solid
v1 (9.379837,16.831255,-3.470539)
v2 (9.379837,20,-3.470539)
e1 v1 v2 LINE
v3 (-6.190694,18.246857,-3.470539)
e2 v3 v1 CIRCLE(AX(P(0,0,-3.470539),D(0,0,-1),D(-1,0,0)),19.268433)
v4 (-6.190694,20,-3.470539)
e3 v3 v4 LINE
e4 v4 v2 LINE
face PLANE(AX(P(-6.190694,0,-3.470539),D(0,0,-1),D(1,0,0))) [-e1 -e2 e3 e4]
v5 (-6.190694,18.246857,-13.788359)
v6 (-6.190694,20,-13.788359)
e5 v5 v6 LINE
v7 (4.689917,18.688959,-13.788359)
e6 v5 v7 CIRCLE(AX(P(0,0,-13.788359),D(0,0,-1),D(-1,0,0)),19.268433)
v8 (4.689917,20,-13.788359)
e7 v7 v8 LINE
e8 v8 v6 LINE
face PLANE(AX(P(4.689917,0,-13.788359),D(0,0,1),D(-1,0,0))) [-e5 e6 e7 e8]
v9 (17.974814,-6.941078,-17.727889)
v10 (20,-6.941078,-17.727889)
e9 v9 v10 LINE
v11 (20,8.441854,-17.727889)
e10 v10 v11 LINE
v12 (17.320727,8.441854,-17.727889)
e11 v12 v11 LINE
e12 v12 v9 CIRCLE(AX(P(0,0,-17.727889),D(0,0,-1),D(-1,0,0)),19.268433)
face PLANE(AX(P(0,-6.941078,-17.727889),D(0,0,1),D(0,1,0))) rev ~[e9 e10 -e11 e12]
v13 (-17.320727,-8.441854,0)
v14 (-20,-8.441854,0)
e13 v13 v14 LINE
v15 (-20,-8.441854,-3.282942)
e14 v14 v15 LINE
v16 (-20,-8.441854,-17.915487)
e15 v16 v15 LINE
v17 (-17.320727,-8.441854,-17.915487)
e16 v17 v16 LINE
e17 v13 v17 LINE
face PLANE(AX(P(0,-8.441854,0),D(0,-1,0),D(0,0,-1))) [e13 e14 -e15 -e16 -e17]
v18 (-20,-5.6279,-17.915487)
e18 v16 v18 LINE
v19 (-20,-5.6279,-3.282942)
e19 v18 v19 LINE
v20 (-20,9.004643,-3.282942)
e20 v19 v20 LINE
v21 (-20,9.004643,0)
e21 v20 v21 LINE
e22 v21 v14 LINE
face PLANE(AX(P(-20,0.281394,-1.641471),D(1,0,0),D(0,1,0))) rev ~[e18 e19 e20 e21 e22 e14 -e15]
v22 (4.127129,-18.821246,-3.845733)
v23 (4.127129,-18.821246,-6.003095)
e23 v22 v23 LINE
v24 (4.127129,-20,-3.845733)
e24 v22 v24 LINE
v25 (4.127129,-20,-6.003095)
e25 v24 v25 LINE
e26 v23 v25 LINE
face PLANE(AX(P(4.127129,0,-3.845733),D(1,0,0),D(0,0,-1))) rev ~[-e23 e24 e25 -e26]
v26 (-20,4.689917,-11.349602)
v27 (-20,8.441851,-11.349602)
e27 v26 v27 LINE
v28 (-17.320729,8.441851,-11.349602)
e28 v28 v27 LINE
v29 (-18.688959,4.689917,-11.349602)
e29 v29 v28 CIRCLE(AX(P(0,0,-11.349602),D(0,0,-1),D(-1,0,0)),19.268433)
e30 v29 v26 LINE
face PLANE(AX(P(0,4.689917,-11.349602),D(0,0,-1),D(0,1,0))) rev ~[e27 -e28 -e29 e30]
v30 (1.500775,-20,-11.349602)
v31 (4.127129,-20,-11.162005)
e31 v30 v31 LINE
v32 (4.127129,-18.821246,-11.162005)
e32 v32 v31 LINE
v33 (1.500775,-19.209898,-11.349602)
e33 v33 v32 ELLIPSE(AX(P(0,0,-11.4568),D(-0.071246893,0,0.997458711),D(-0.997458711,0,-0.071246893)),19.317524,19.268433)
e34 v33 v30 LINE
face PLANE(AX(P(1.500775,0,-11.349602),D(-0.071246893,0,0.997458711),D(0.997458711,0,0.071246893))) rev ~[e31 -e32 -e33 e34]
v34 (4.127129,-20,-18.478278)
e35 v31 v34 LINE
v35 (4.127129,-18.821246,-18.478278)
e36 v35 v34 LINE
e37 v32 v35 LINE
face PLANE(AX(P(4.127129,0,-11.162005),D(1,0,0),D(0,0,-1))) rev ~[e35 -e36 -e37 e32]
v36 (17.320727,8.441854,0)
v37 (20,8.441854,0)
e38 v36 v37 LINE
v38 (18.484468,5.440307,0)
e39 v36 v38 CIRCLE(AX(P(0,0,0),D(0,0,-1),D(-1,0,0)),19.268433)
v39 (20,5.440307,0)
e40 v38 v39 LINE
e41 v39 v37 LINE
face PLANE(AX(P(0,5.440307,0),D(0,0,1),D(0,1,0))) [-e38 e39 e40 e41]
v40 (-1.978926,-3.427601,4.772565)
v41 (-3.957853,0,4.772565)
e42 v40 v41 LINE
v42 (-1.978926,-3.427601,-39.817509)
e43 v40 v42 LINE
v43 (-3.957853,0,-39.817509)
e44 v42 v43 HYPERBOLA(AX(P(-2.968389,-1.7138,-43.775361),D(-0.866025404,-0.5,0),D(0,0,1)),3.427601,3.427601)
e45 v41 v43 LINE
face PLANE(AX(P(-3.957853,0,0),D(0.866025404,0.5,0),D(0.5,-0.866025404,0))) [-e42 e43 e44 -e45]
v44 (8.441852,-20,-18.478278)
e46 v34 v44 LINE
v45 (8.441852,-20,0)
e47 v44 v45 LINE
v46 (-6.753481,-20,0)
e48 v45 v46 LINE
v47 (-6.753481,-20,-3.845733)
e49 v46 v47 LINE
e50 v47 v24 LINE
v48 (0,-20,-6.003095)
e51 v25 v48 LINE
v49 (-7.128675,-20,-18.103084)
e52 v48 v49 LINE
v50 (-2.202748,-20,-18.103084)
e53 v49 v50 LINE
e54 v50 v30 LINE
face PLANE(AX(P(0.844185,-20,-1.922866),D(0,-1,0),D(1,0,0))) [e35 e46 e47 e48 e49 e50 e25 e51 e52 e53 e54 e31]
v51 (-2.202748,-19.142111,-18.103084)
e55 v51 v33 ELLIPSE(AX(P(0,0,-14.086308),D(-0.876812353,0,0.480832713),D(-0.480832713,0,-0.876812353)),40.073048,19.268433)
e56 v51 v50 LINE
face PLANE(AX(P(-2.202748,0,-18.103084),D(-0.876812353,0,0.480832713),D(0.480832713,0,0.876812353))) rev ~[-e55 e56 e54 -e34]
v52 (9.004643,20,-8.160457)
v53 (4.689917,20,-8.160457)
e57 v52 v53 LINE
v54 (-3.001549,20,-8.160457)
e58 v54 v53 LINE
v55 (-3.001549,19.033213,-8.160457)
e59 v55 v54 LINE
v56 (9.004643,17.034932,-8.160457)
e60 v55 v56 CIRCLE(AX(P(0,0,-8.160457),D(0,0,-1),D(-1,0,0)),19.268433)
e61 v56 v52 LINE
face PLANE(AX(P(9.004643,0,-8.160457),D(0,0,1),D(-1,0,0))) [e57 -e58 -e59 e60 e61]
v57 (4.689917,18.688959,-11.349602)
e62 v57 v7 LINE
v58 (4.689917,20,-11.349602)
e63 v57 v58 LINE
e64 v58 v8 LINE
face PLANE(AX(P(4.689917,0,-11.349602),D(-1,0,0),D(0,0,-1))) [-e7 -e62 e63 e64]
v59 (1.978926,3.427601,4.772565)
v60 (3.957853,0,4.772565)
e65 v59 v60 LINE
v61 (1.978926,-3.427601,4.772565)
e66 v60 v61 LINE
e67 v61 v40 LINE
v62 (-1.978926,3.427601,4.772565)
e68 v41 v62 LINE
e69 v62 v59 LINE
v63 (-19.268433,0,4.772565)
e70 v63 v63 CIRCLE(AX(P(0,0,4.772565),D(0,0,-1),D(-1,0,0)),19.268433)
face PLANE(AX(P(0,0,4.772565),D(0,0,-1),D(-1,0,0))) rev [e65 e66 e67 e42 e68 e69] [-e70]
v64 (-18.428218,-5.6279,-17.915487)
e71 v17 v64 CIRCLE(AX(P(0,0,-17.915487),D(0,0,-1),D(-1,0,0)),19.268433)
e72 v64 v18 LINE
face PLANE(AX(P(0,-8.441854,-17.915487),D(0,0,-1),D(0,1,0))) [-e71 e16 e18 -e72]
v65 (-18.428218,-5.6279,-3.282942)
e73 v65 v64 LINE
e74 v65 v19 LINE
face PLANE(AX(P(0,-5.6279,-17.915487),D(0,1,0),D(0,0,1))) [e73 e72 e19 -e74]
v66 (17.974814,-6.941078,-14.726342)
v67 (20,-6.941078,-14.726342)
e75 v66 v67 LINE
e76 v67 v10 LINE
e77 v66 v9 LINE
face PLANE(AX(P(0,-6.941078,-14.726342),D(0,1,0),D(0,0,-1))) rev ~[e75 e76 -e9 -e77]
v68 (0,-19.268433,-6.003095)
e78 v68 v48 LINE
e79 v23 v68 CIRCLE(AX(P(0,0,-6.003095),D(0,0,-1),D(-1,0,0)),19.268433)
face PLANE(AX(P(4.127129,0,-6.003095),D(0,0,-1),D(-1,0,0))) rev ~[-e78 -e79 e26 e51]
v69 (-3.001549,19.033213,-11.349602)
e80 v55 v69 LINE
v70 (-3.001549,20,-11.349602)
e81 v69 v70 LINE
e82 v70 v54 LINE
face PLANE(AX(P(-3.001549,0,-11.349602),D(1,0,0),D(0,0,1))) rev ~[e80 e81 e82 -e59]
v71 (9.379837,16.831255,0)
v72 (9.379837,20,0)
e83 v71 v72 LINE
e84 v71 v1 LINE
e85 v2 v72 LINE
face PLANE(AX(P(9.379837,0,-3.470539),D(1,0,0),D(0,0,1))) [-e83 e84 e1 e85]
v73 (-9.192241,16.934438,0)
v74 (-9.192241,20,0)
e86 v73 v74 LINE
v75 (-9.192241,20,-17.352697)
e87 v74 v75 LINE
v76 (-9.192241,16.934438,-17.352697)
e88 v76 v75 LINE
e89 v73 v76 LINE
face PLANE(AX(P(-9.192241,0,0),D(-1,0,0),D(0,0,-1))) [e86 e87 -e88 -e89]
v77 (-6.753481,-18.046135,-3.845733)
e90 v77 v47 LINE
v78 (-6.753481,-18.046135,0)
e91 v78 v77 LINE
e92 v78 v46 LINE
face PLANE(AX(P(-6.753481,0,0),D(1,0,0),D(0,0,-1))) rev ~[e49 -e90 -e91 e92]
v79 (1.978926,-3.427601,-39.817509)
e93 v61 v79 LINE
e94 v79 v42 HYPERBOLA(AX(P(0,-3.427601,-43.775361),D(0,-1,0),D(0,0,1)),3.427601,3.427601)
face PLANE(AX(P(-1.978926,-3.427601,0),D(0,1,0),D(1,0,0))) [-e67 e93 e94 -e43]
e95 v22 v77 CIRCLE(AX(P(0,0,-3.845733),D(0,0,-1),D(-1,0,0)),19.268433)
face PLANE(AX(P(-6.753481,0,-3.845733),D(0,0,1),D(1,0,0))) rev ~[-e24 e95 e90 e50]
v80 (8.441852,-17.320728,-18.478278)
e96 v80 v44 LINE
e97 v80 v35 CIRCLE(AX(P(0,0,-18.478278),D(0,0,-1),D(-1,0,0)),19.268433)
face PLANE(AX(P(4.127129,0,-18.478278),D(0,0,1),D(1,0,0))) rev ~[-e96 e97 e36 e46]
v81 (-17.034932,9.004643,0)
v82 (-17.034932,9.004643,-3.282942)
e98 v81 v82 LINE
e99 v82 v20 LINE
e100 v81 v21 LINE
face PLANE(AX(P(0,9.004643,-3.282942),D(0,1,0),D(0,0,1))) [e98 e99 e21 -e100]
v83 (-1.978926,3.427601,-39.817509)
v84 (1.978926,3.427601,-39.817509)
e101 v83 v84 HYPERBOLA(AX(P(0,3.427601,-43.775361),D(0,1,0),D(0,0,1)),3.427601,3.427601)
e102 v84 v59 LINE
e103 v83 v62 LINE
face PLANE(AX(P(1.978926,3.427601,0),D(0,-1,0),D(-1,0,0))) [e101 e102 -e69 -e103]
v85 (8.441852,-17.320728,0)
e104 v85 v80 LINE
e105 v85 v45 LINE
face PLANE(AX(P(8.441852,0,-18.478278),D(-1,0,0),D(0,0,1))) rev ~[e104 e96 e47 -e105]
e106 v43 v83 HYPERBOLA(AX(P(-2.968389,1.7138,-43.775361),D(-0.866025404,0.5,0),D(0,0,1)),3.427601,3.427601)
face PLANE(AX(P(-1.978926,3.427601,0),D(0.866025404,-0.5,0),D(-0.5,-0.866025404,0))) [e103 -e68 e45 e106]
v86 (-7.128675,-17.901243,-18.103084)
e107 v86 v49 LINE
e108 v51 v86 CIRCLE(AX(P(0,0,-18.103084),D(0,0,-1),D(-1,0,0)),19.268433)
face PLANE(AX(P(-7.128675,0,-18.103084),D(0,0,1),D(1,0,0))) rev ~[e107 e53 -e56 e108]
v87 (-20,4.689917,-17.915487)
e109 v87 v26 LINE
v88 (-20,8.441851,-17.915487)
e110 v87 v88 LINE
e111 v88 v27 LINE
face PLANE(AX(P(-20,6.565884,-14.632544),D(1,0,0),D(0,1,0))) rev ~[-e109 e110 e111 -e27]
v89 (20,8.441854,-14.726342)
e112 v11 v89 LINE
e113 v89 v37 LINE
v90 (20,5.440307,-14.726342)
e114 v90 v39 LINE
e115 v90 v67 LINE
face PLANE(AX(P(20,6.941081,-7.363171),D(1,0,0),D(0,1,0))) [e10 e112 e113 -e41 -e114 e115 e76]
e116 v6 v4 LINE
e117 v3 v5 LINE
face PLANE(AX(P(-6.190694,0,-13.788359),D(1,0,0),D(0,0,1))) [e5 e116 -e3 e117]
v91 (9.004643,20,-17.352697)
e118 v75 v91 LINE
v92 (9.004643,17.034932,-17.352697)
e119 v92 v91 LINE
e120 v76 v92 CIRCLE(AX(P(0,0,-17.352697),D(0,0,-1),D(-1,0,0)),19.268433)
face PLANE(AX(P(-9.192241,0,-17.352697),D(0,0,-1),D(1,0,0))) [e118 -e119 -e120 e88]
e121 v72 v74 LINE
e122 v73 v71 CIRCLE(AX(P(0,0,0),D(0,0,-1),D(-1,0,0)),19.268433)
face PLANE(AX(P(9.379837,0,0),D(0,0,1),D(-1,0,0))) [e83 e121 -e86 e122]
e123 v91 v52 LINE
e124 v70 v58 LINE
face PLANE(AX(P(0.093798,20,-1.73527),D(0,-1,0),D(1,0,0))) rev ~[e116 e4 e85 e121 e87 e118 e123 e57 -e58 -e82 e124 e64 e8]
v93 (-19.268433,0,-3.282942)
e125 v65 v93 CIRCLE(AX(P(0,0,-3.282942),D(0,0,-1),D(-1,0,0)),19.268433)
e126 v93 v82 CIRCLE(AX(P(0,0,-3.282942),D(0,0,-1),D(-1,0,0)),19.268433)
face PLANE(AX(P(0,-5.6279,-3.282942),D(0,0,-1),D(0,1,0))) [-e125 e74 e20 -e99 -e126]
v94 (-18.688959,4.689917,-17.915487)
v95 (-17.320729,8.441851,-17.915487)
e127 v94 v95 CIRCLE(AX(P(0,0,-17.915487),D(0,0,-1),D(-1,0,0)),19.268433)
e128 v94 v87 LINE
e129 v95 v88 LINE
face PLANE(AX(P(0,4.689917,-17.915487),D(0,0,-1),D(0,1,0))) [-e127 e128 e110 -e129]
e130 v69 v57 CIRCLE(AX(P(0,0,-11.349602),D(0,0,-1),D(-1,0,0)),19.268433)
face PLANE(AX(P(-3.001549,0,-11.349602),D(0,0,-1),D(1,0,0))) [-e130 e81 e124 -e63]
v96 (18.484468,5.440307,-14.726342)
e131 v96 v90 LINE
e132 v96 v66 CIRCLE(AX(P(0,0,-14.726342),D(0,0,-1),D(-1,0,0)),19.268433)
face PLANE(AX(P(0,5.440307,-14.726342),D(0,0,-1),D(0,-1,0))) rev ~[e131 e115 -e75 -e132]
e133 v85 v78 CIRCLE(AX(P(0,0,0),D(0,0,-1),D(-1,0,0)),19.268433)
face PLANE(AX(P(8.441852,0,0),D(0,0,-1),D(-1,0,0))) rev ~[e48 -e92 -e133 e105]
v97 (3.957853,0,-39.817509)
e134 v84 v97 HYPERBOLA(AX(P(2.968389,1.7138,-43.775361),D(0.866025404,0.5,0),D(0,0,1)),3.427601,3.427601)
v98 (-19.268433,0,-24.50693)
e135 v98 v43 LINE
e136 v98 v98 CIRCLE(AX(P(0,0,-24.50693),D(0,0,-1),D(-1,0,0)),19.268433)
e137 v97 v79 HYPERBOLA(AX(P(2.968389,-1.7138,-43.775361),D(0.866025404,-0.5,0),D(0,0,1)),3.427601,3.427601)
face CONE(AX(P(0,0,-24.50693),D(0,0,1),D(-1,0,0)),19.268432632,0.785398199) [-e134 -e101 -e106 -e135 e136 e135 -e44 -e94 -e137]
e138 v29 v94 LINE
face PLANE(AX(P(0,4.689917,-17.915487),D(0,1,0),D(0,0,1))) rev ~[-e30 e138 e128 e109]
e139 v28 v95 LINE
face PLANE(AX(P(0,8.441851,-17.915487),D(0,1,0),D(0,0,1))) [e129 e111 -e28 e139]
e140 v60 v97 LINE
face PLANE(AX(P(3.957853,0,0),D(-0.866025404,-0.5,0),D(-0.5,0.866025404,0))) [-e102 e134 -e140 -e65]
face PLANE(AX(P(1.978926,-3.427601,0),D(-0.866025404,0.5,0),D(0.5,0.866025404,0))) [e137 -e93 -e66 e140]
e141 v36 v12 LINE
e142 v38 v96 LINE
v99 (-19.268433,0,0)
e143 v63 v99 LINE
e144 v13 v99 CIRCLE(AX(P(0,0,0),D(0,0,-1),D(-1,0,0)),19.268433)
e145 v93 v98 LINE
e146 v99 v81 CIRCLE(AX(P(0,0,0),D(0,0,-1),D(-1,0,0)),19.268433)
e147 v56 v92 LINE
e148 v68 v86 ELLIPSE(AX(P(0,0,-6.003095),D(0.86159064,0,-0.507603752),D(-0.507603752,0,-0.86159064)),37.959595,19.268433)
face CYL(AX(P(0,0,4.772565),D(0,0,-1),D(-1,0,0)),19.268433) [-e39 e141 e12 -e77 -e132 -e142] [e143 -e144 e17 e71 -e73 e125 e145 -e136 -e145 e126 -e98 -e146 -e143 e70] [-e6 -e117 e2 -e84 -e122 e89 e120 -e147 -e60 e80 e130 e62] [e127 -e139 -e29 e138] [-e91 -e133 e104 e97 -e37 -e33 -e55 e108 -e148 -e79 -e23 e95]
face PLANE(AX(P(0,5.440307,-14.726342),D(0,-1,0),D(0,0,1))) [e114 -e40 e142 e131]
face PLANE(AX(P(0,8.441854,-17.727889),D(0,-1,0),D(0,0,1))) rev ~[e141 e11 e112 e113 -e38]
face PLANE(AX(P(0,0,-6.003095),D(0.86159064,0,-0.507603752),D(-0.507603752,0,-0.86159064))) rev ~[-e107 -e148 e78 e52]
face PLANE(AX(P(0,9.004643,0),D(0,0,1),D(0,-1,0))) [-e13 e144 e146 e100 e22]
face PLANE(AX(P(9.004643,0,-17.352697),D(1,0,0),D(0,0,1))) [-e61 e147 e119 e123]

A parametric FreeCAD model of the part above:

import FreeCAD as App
import Part
import Sketcher
from FreeCAD import Vector
Q = App.Units.Quantity


def add_polygon(sketch, points):
    """Adds a closed chain of lines whose ends are joined by coincident constraints."""
    first, n = sketch.GeometryCount, len(points)
    for a, b in zip(points, points[1:] + points[:1]):
        sketch.addGeometry(Part.LineSegment(App.Vector(*a, 0), App.Vector(*b, 0)), False)
    for i in range(n):
        sketch.addConstraint(Sketcher.Constraint("Coincident", first + i, 2, first + (i + 1) % n, 1))

doc = App.newDocument("Part")
body = doc.addObject("PartDesign::Body", "Body")

# Sketch on XZ plane
sketch1 = doc.addObject("Sketcher::SketchObject", "Sketch")
body.addObject(sketch1)
sketch1.AttachmentSupport = (doc.XZ_Plane, [""])
sketch1.MapMode = "FlatFace"
add_polygon(sketch1, [(0, 5), (-19, 5), (-19, -25), (0, -44)])  # lines 0-3
sketch1.addConstraint([
    Sketcher.Constraint("Horizontal", 0),
    Sketcher.Constraint("Vertical", 1),
    Sketcher.Constraint("Vertical", 3),
    Sketcher.Constraint("PointOnObject", 2, 2, -2),
    Sketcher.Constraint("Angle", 2, Q("-44.999998 deg")),
    Sketcher.Constraint("DistanceX", 0, 2, 0, 1, Q("19.268433 mm")),
    Sketcher.Constraint("DistanceY", 1, 2, 1, 1, Q("29.279495 mm")),
    Sketcher.Constraint("DistanceY", 1, 2, -1, 1, Q("24.50693 mm")),
])
revolution = doc.addObject("PartDesign::Revolution", "Revolution")
body.addObject(revolution)
revolution.Profile = sketch1
revolution.ReferenceAxis = (sketch1, ["V_Axis"])
revolution.Angle = 360

# Sketch on XY plane
sketch2 = doc.addObject("Sketcher::SketchObject", "Sketch001")
body.addObject(sketch2)
sketch2.AttachmentSupport = (doc.XY_Plane, [""])
sketch2.MapMode = "FlatFace"
add_polygon(sketch2, [(-2, -3.4), (2, -3.4), (4, 0), (2, 3.4), (-2, 3.4), (-4, 0)])  # lines 0-5
sketch2.addConstraint([
    Sketcher.Constraint("Horizontal", 0),
    Sketcher.Constraint("Horizontal", 3),
    Sketcher.Constraint("Symmetric", 0, 2, 3, 2, -1, 1),
    Sketcher.Constraint("Symmetric", 1, 2, 4, 2, -1, 1),
    Sketcher.Constraint("PointOnObject", 1, 2, -1),
    Sketcher.Constraint("Parallel", 2, 5),
    Sketcher.Constraint("Vertical", 0, 2, 2, 2),
    Sketcher.Constraint("Angle", 1, Q("60 deg")),
    Sketcher.Constraint("DistanceY", 0, 2, -1, 1, Q("3.427601 mm")),
    Sketcher.Constraint("DistanceX", 0, 1, 0, 2, Q("3.957853 mm")),
])
pocket1 = doc.addObject("PartDesign::Pocket", "Pocket")
body.addObject(pocket1)
pocket1.Profile = sketch2
pocket1.Length = 71.64283
pocket1.Reversed = True

# Sketch on YZ plane
sketch3 = doc.addObject("Sketcher::SketchObject", "Sketch002")
body.addObject(sketch3)
sketch3.AttachmentSupport = (doc.YZ_Plane, [""])
sketch3.MapMode = "FlatFace"
add_polygon(sketch3, [(5.4, 0), (5.4, -14.7), (-6.9, -14.7), (-6.9, -17.7), (8.4, -17.7), (8.4, -14.7), (8.4, 0)])  # lines 0-6
sketch3.addConstraint([
    Sketcher.Constraint("Vertical", 0),
    Sketcher.Constraint("Horizontal", 1),
    Sketcher.Constraint("Vertical", 2),
    Sketcher.Constraint("Horizontal", 3),
    Sketcher.Constraint("Vertical", 4),
    Sketcher.Constraint("Vertical", 5),
    Sketcher.Constraint("Horizontal", 6),
    Sketcher.Constraint("PointOnObject", 5, 2, -1),
    Sketcher.Constraint("Horizontal", 1, 2, 4, 2),
    Sketcher.Constraint("Equal", 6, 2),
    Sketcher.Constraint("DistanceY", 0, 2, 0, 1, Q("14.726342 mm")),
    Sketcher.Constraint("DistanceX", 1, 2, 1, 1, Q("12.381385 mm")),
    Sketcher.Constraint("DistanceX", 3, 1, 3, 2, Q("15.382932 mm")),
    Sketcher.Constraint("DistanceX", 1, 2, -1, 1, Q("6.941078 mm")),
])
pad1 = doc.addObject("PartDesign::Pad", "Pad")
body.addObject(pad1)
pad1.Profile = sketch3
pad1.Length = 20

# Sketch on YZ plane
sketch4 = doc.addObject("Sketcher::SketchObject", "Sketch003")
body.addObject(sketch4)
sketch4.AttachmentSupport = (doc.YZ_Plane, [""])
sketch4.MapMode = "FlatFace"
add_polygon(sketch4, [(9, -3.3), (9, 0), (-8.4, 0), (-8.4, -3.3), (-8.4, -17.9), (-5.6, -17.9), (-5.6, -3.3)])  # lines 0-6
add_polygon(sketch4, [(4.7, -11.3), (4.7, -17.9), (8.4, -17.9), (8.4, -11.3)])  # lines 7-10
sketch4.addConstraint([
    Sketcher.Constraint("Vertical", 0),
    Sketcher.Constraint("Horizontal", 1),
    Sketcher.Constraint("Vertical", 2),
    Sketcher.Constraint("Vertical", 3),
    Sketcher.Constraint("Horizontal", 4),
    Sketcher.Constraint("Vertical", 5),
    Sketcher.Constraint("Horizontal", 6),
    Sketcher.Constraint("Vertical", 7),
    Sketcher.Constraint("Horizontal", 8),
    Sketcher.Constraint("Vertical", 9),
    Sketcher.Constraint("Horizontal", 10),
    Sketcher.Constraint("Symmetric", 3, 2, 8, 2, -2),
    Sketcher.Constraint("PointOnObject", 0, 2, -1),
    Sketcher.Constraint("Horizontal", 2, 2, 5, 2),
    Sketcher.Constraint("Equal", 6, 3),
    Sketcher.Constraint("DistanceX", 4, 2, -1, 1, Q("5.6279 mm")),
    Sketcher.Constraint("DistanceY", 9, 2, -1, 1, Q("11.349602 mm")),
    Sketcher.Constraint("DistanceX", 1, 2, 1, 1, Q("17.446497 mm")),
    Sketcher.Constraint("DistanceX", 4, 1, 4, 2, Q("2.813954 mm")),
    Sketcher.Constraint("DistanceX", 8, 1, 8, 2, Q("3.751934 mm")),
    Sketcher.Constraint("DistanceY", 0, 1, 0, 2, Q("3.282942 mm")),
])
pad2 = doc.addObject("PartDesign::Pad", "Pad001")
body.addObject(pad2)
pad2.Profile = sketch4
pad2.Length = 20
pad2.Reversed = True

# Sketch on XZ plane
sketch5 = doc.addObject("Sketcher::SketchObject", "Sketch004")
body.addObject(sketch5)
sketch5.AttachmentSupport = (doc.XZ_Plane, [""])
sketch5.MapMode = "FlatFace"
add_polygon(sketch5, [(8.4, 0), (-6.8, 0), (-6.8, -3.8), (4.1, -3.8), (4.1, -6), (0, -6), (-7.1, -18.1), (-2.2, -18.1), (1.5, -11.3), (4.1, -11.2), (4.1, -18.5), (8.4, -18.5)])  # lines 0-11
sketch5.addConstraint([
    Sketcher.Constraint("Horizontal", 0),
    Sketcher.Constraint("Vertical", 1),
    Sketcher.Constraint("Horizontal", 2),
    Sketcher.Constraint("Vertical", 3),
    Sketcher.Constraint("Horizontal", 4),
    Sketcher.Constraint("Horizontal", 6),
    Sketcher.Constraint("Vertical", 9),
    Sketcher.Constraint("Horizontal", 10),
    Sketcher.Constraint("Vertical", 11),
    Sketcher.Constraint("PointOnObject", 0, 2, -1),
    Sketcher.Constraint("PointOnObject", 4, 2, -2),
    Sketcher.Constraint("Vertical", 3, 2, 8, 2),
    Sketcher.Constraint("DistanceX", 2, 1, 2, 2, Q("10.88061 mm")),
    Sketcher.Constraint("DistanceX", 4, 2, 4, 1, Q("4.127129 mm")),
    Sketcher.Constraint("DistanceY", 7, 2, -1, 1, Q("11.349602 mm")),
    Sketcher.Constraint("DistanceX", 6, 2, 10, 2, Q("10.644601 mm")),
    Sketcher.Constraint("Distance", 5, Q("14.043779 mm")),
    Sketcher.Constraint("Distance", 7, Q("7.702312 mm")),
    Sketcher.Constraint("DistanceX", 0, 2, 0, 1, Q("15.195334 mm")),
    Sketcher.Constraint("DistanceX", 6, 1, 6, 2, Q("4.925927 mm")),
    Sketcher.Constraint("DistanceY", 1, 2, 1, 1, Q("3.845733 mm")),
    Sketcher.Constraint("DistanceY", 3, 2, 3, 1, Q("2.157362 mm")),
    Sketcher.Constraint("DistanceY", 9, 2, 9, 1, Q("7.316272 mm")),
    Sketcher.Constraint("DistanceY", 11, 1, 11, 2, Q("18.478278 mm")),
])
pad3 = doc.addObject("PartDesign::Pad", "Pad002")
body.addObject(pad3)
pad3.Profile = sketch5
pad3.Length = 20

# Sketch on XZ plane
sketch6 = doc.addObject("Sketcher::SketchObject", "Sketch005")
body.addObject(sketch6)
sketch6.AttachmentSupport = (doc.XZ_Plane, [""])
sketch6.MapMode = "FlatFace"
add_polygon(sketch6, [(9.4, -3.5), (9.4, 0), (-9.2, 0), (-9.2, -17.4), (9, -17.4), (9, -8.2), (4.7, -8.2), (-3, -8.2), (-3, -11.3), (4.7, -11.3), (4.7, -13.8), (-6.2, -13.8), (-6.2, -3.5)])  # lines 0-12
sketch6.addConstraint([
    Sketcher.Constraint("Vertical", 0),
    Sketcher.Constraint("Horizontal", 1),
    Sketcher.Constraint("Vertical", 2),
    Sketcher.Constraint("Horizontal", 3),
    Sketcher.Constraint("Vertical", 4),
    Sketcher.Constraint("Horizontal", 5),
    Sketcher.Constraint("Horizontal", 6),
    Sketcher.Constraint("Vertical", 7),
    Sketcher.Constraint("Horizontal", 8),
    Sketcher.Constraint("Vertical", 9),
    Sketcher.Constraint("Horizontal", 10),
    Sketcher.Constraint("Vertical", 11),
    Sketcher.Constraint("Horizontal", 12),
    Sketcher.Constraint("PointOnObject", 0, 2, -1),
    Sketcher.Constraint("Vertical", 5, 2, 8, 2),
    Sketcher.Constraint("DistanceX", 1, 2, 1, 1, Q("18.572078 mm")),
    Sketcher.Constraint("DistanceX", 10, 2, 10, 1, Q("10.880611 mm")),
    Sketcher.Constraint("DistanceX", 12, 1, 12, 2, Q("15.570531 mm")),
    Sketcher.Constraint("DistanceY", 0, 1, 0, 2, Q("3.470539 mm")),
    Sketcher.Constraint("DistanceY", 4, 1, 4, 2, Q("9.192239 mm")),
    Sketcher.Constraint("DistanceY", 11, 1, 11, 2, Q("10.31782 mm")),
    Sketcher.Constraint("DistanceY", 7, 2, -1, 1, Q("11.349602 mm")),
    Sketcher.Constraint("DistanceX", 3, 1, 3, 2, Q("18.196885 mm")),
    Sketcher.Constraint("DistanceX", 6, 2, 6, 1, Q("7.691466 mm")),
    Sketcher.Constraint("DistanceY", 2, 2, 2, 1, Q("17.352697 mm")),
    Sketcher.Constraint("DistanceX", 1, 2, -1, 1, Q("9.192241 mm")),
])
pad4 = doc.addObject("PartDesign::Pad", "Pad003")
body.addObject(pad4)
pad4.Profile = sketch6
pad4.Length = 20
pad4.Reversed = True

# Sketch on XY plane
sketch7 = doc.addObject("Sketcher::SketchObject", "Sketch006")
body.addObject(sketch7)
sketch7.AttachmentSupport = (doc.XY_Plane, [""])
sketch7.MapMode = "FlatFace"
add_polygon(sketch7, [(-2, -3.4), (2, -3.4), (4, 0), (2, 3.4), (-2, 3.4), (-4, 0)])  # lines 0-5
sketch7.addConstraint([
    Sketcher.Constraint("Horizontal", 0),
    Sketcher.Constraint("Horizontal", 3),
    Sketcher.Constraint("Symmetric", 0, 2, 3, 2, -1, 1),
    Sketcher.Constraint("Symmetric", 1, 2, 4, 2, -1, 1),
    Sketcher.Constraint("PointOnObject", 1, 2, -1),
    Sketcher.Constraint("Parallel", 2, 5),
    Sketcher.Constraint("Vertical", 0, 2, 2, 2),
    Sketcher.Constraint("Angle", 1, Q("60 deg")),
    Sketcher.Constraint("DistanceY", 0, 2, -1, 1, Q("3.427601 mm")),
    Sketcher.Constraint("DistanceX", 0, 1, 0, 2, Q("3.957853 mm")),
])
pocket2 = doc.addObject("PartDesign::Pocket", "Pocket001")
body.addObject(pocket2)
pocket2.Profile = sketch7
pocket2.Length = 49.92346

doc.recompute()
